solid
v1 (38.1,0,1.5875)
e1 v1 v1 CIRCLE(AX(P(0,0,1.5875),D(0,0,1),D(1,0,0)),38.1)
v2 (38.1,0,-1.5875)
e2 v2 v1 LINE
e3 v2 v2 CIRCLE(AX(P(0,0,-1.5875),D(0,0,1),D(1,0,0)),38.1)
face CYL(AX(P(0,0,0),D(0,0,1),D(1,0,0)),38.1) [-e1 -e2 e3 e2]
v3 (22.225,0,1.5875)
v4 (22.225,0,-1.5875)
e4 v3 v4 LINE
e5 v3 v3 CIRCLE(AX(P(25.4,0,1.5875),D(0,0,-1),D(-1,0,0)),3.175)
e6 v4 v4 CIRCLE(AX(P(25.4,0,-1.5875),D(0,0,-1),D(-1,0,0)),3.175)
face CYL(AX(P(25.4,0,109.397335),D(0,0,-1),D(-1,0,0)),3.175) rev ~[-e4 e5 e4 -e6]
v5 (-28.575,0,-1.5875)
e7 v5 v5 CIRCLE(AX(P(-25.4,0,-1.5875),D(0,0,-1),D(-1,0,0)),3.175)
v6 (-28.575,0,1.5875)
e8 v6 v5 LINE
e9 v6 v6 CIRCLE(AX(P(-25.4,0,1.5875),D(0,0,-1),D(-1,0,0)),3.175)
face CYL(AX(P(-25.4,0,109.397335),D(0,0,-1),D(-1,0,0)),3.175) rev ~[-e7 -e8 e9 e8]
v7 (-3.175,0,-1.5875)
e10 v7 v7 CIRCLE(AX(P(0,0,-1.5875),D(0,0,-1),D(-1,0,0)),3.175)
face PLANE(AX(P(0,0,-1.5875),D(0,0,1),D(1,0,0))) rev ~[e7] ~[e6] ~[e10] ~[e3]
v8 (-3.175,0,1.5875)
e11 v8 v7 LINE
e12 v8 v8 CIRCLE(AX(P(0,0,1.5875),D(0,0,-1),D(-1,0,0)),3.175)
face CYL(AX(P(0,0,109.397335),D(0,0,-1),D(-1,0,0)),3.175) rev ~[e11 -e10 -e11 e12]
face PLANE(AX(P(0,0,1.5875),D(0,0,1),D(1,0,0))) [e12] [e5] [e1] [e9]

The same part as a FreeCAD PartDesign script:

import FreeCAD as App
import Part
import Sketcher

V = App.Vector
Q = App.Units.Quantity

doc = App.newDocument("Part")
body = doc.addObject("PartDesign::Body", "Body")

# Sketch on XY plane
sketch1 = doc.addObject("Sketcher::SketchObject", "Sketch")
body.addObject(sketch1)
sketch1.AttachmentSupport = (doc.XY_Plane, [""])
sketch1.MapMode = "FlatFace"
sketch1.addGeometry(Part.Circle(V(0, 0, 0), V(0, 0, 1), 38), False)
sketch1.addConstraint([
    Sketcher.Constraint("Coincident", 0, 3, -1, 1),
    Sketcher.Constraint("Diameter", 0, Q("3 in")),
])
pad1 = doc.addObject("PartDesign::Pad", "Pad")
body.addObject(pad1)
pad1.Profile = sketch1
pad1.Length = Q("0.125 in")
pad1.Midplane = True

# Sketch on XY plane
sketch2 = doc.addObject("Sketcher::SketchObject", "Sketch001")
body.addObject(sketch2)
sketch2.AttachmentSupport = (doc.XY_Plane, [""])
sketch2.MapMode = "FlatFace"
sketch2.AttachmentOffset = App.Placement(V(0, 0, 0.0625 * 25.4), App.Rotation())
sketch2.addGeometry([
    Part.Circle(V(-25.4, 0, 0), V(0, 0, 1), 3.2),
    Part.Circle(V(0, 0, 0), V(0, 0, 1), 3.2),
    Part.Circle(V(25.4, 0, 0), V(0, 0, 1), 3.2),
], False)
sketch2.addConstraint([
    Sketcher.Constraint("Coincident", 1, 3, -1, 1),
    Sketcher.Constraint("Equal", 0, 1),
    Sketcher.Constraint("Equal", 1, 2),
    Sketcher.Constraint("Symmetric", 0, 3, 2, 3, -1, 1),
    Sketcher.Constraint("PointOnObject", 0, 3, -1),
    Sketcher.Constraint("Diameter", 0, Q("0.25 in")),
    Sketcher.Constraint("DistanceX", 0, 3, -1, 1, Q("1 in")),
])
doc.recompute()
hole = doc.addObject("PartDesign::Hole", "Hole")
body.addObject(hole)
hole.Profile = sketch2
hole.ThreadType = "None"
hole.Diameter = Q("0.25 in")
hole.DepthType = "ThroughAll"

doc.recompute()
